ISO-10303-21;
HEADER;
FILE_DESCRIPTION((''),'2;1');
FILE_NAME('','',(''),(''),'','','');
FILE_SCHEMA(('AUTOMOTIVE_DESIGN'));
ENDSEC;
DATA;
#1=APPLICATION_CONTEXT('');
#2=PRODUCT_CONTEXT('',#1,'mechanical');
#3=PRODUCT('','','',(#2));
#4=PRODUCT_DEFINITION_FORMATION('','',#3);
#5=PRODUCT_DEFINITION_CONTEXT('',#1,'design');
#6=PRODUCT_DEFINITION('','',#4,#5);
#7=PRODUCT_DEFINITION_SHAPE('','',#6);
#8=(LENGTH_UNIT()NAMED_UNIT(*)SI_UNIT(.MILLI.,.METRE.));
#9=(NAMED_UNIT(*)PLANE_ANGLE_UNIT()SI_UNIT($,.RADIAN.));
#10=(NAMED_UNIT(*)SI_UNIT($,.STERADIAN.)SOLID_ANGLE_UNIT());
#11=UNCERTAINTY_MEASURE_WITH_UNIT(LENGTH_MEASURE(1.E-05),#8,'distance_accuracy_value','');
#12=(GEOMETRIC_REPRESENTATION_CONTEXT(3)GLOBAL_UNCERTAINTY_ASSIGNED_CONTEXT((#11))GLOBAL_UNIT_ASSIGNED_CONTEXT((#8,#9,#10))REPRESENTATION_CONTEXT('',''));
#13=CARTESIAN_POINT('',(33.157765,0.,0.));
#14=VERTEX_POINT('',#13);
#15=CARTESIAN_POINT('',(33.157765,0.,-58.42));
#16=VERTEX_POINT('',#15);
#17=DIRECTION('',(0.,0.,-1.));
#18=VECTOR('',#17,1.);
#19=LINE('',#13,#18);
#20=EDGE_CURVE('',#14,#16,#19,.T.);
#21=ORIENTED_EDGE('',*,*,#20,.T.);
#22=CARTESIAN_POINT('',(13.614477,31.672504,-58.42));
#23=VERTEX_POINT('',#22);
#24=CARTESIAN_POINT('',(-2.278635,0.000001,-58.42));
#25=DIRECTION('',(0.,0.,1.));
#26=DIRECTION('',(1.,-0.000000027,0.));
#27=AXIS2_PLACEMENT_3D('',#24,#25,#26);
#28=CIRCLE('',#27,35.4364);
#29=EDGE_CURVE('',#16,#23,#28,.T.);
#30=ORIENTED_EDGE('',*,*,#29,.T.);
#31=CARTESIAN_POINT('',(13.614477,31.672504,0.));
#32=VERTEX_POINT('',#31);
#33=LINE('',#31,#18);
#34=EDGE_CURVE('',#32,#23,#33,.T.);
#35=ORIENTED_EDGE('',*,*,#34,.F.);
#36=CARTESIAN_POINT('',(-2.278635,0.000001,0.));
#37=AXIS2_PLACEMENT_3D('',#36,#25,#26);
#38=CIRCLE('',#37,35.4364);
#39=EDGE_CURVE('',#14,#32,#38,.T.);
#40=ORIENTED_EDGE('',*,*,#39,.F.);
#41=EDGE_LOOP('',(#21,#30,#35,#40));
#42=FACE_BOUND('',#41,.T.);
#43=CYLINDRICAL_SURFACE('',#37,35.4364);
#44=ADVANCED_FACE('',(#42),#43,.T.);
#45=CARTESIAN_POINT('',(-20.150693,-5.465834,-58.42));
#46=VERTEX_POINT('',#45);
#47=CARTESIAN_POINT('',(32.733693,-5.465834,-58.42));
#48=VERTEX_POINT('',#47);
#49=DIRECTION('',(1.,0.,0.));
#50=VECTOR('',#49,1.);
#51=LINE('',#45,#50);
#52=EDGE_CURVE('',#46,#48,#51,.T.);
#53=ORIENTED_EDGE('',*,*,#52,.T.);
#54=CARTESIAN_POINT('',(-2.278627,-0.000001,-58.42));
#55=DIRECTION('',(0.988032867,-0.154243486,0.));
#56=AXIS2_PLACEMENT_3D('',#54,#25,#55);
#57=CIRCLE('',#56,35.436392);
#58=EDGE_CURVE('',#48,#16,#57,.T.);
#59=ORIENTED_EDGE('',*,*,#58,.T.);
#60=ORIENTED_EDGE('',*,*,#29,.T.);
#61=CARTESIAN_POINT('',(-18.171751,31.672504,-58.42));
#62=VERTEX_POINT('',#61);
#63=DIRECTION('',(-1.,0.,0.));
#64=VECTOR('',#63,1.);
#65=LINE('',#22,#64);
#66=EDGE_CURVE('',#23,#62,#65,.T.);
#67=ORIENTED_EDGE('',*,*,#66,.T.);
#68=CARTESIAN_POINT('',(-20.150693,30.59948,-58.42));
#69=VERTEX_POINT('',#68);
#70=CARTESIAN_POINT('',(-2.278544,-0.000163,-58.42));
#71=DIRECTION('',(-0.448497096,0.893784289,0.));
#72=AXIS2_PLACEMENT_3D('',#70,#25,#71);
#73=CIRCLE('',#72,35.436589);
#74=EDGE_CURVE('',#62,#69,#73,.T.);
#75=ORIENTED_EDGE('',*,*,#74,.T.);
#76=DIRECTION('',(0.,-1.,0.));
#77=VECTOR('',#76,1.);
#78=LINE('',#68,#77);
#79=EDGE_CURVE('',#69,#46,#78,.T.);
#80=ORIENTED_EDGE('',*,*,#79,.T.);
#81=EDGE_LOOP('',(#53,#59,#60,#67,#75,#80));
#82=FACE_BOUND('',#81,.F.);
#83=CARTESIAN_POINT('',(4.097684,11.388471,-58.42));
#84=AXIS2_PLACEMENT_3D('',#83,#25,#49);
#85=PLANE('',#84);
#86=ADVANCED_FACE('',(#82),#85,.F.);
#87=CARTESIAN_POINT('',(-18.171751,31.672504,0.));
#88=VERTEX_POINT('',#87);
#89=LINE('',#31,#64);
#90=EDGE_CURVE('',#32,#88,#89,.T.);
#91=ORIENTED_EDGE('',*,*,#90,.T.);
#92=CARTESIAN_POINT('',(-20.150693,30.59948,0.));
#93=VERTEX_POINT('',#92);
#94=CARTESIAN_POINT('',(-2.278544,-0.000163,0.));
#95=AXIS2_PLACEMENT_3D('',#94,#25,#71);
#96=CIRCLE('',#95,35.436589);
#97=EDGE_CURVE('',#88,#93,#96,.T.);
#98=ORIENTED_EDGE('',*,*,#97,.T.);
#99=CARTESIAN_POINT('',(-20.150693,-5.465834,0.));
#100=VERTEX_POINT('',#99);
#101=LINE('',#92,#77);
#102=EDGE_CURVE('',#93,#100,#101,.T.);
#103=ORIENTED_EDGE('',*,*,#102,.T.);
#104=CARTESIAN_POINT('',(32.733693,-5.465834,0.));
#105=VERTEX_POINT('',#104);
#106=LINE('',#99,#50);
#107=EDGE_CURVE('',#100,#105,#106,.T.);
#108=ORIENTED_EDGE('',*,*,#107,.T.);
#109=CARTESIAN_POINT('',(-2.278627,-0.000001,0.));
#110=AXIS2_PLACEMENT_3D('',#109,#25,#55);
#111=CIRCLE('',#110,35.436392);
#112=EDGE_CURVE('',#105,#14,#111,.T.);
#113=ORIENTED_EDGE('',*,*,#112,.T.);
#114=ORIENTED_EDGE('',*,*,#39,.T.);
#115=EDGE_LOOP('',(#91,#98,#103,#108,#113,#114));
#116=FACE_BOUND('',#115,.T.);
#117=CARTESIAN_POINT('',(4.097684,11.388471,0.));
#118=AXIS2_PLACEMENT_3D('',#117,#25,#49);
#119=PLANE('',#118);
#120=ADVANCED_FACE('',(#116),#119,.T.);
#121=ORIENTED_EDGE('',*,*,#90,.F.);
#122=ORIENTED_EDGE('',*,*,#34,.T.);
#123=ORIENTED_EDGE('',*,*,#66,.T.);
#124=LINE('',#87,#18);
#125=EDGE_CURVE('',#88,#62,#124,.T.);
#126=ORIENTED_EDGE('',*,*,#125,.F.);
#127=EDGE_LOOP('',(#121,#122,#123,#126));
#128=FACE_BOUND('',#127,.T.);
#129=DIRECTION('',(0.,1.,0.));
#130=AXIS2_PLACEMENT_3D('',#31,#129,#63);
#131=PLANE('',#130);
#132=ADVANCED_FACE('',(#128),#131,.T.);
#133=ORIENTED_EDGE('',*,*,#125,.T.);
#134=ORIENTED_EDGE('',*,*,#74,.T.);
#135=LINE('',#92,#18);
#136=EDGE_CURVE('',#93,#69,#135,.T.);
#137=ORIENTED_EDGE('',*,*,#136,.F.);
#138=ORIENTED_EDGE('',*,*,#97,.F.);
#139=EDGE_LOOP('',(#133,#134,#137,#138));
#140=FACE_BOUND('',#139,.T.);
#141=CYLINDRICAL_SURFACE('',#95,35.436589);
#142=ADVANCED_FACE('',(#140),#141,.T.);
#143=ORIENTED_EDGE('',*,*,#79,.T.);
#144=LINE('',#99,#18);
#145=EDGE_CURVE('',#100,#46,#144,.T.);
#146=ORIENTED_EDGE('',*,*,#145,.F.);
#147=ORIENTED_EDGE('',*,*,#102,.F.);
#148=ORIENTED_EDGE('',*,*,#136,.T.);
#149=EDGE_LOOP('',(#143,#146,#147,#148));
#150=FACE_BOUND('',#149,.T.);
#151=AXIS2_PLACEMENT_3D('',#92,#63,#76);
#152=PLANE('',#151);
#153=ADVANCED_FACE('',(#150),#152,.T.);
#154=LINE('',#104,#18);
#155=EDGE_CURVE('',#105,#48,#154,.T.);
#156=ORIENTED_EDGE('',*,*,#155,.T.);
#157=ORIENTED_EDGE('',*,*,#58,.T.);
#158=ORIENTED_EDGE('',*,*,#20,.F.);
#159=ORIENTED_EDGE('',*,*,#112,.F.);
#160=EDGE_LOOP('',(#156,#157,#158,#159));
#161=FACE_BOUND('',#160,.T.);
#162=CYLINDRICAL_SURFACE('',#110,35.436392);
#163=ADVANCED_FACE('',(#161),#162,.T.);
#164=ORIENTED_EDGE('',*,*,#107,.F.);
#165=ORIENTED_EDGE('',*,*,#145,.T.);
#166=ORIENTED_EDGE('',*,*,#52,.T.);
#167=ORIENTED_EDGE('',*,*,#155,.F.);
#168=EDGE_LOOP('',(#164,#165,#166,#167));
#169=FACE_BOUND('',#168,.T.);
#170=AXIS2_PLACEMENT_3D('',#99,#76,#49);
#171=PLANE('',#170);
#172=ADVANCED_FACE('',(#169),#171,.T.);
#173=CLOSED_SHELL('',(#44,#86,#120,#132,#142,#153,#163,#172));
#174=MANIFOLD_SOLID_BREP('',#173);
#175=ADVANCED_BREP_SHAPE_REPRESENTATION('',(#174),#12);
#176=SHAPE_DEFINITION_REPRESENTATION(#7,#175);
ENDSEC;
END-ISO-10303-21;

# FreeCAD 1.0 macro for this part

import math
import FreeCAD as App
import Part
import Sketcher

V = App.Vector
Q = App.Units.Quantity

doc = App.newDocument("Part")
params = doc.addObject("Spreadsheet::Sheet", "Params")
for row, (alias, value) in enumerate([
    ("pad1_length", "2.3 in"),
], start=1):
    params.set(f"A{row}", alias)
    params.set(f"B{row}", "=" + value)
    params.setAlias(f"B{row}", alias)

body = doc.addObject("PartDesign::Body", "Body")

# Sketch on XY plane
sketch1 = body.newObject("Sketcher::SketchObject", "Sketch")
sketch1.AttachmentSupport = (doc.getObject("XY_Plane"), [""])
sketch1.MapMode = "FlatFace"
sketch1.addGeometry(Part.LineSegment(V(-20.2, -5.5, 0), V(32.7, -5.5, 0)), False)
sketch1.addGeometry(Part.ArcOfCircle(Part.Circle(V(-2.3, 0, 0), V(0, 0, 1), 35.4), math.radians(-8.87), math.radians(0)), False)
sketch1.addGeometry(Part.ArcOfCircle(Part.Circle(V(-2.3, 0, 0), V(0, 0, 1), 35.4), math.radians(0), math.radians(63)), False)
sketch1.addGeometry(Part.LineSegment(V(13.6, 31.7, 0), V(-18.2, 31.7, 0)), False)
sketch1.addGeometry(Part.ArcOfCircle(Part.Circle(V(-2.3, 0, 0), V(0, 0, 1), 35.4), math.radians(116.65), math.radians(120.29)), False)
sketch1.addGeometry(Part.LineSegment(V(-20.2, 30.6, 0), V(-20.2, -5.5, 0)), False)
sketch1.addConstraint(Sketcher.Constraint("Coincident", 0, 2, 1, 1))
sketch1.addConstraint(Sketcher.Constraint("Tangent", 1, 2, 2, 1))
sketch1.addConstraint(Sketcher.Constraint("Coincident", 2, 2, 3, 1))
sketch1.addConstraint(Sketcher.Constraint("Coincident", 3, 2, 4, 1))
sketch1.addConstraint(Sketcher.Constraint("Coincident", 4, 2, 5, 1))
sketch1.addConstraint(Sketcher.Constraint("Coincident", 5, 2, 0, 1))
sketch1.addConstraint(Sketcher.Constraint("Horizontal", 0))
sketch1.addConstraint(Sketcher.Constraint("Horizontal", 3))
sketch1.addConstraint(Sketcher.Constraint("Vertical", 5))
sketch1.addConstraint(Sketcher.Constraint("PointOnObject", 1, 3, -1))
sketch1.addConstraint(Sketcher.Constraint("PointOnObject", 1, 2, -1))
sketch1.addConstraint(Sketcher.Constraint("Radius", 2, Q("35.4364 mm")))
sketch1.addConstraint(Sketcher.Constraint("Radius", 1, Q("35.436392 mm")))
sketch1.addConstraint(Sketcher.Constraint("Radius", 4, Q("35.436589 mm")))
sketch1.addConstraint(Sketcher.Constraint("DistanceX", 3, 2, 3, 1, Q("31.786228 mm")))
sketch1.addConstraint(Sketcher.Constraint("DistanceX", 0, 1, 0, 2, Q("52.884386 mm")))
sketch1.addConstraint(Sketcher.Constraint("DistanceY", 5, 2, 5, 1, Q("36.065314 mm")))
sketch1.addConstraint(Sketcher.Constraint("DistanceX", 3, 2, -1, 1, Q("18.171751 mm")))
sketch1.addConstraint(Sketcher.Constraint("DistanceY", -1, 1, 4, 2, Q("30.59948 mm")))
sketch1.addConstraint(Sketcher.Constraint("DistanceY", 4, 3, 1, 3, Q("0.000161 mm")))
pad1 = body.newObject("PartDesign::Pad", "Pad")
pad1.Profile = sketch1
pad1.setExpression("Length", "Params.pad1_length")
pad1.Reversed = True

doc.recompute()
